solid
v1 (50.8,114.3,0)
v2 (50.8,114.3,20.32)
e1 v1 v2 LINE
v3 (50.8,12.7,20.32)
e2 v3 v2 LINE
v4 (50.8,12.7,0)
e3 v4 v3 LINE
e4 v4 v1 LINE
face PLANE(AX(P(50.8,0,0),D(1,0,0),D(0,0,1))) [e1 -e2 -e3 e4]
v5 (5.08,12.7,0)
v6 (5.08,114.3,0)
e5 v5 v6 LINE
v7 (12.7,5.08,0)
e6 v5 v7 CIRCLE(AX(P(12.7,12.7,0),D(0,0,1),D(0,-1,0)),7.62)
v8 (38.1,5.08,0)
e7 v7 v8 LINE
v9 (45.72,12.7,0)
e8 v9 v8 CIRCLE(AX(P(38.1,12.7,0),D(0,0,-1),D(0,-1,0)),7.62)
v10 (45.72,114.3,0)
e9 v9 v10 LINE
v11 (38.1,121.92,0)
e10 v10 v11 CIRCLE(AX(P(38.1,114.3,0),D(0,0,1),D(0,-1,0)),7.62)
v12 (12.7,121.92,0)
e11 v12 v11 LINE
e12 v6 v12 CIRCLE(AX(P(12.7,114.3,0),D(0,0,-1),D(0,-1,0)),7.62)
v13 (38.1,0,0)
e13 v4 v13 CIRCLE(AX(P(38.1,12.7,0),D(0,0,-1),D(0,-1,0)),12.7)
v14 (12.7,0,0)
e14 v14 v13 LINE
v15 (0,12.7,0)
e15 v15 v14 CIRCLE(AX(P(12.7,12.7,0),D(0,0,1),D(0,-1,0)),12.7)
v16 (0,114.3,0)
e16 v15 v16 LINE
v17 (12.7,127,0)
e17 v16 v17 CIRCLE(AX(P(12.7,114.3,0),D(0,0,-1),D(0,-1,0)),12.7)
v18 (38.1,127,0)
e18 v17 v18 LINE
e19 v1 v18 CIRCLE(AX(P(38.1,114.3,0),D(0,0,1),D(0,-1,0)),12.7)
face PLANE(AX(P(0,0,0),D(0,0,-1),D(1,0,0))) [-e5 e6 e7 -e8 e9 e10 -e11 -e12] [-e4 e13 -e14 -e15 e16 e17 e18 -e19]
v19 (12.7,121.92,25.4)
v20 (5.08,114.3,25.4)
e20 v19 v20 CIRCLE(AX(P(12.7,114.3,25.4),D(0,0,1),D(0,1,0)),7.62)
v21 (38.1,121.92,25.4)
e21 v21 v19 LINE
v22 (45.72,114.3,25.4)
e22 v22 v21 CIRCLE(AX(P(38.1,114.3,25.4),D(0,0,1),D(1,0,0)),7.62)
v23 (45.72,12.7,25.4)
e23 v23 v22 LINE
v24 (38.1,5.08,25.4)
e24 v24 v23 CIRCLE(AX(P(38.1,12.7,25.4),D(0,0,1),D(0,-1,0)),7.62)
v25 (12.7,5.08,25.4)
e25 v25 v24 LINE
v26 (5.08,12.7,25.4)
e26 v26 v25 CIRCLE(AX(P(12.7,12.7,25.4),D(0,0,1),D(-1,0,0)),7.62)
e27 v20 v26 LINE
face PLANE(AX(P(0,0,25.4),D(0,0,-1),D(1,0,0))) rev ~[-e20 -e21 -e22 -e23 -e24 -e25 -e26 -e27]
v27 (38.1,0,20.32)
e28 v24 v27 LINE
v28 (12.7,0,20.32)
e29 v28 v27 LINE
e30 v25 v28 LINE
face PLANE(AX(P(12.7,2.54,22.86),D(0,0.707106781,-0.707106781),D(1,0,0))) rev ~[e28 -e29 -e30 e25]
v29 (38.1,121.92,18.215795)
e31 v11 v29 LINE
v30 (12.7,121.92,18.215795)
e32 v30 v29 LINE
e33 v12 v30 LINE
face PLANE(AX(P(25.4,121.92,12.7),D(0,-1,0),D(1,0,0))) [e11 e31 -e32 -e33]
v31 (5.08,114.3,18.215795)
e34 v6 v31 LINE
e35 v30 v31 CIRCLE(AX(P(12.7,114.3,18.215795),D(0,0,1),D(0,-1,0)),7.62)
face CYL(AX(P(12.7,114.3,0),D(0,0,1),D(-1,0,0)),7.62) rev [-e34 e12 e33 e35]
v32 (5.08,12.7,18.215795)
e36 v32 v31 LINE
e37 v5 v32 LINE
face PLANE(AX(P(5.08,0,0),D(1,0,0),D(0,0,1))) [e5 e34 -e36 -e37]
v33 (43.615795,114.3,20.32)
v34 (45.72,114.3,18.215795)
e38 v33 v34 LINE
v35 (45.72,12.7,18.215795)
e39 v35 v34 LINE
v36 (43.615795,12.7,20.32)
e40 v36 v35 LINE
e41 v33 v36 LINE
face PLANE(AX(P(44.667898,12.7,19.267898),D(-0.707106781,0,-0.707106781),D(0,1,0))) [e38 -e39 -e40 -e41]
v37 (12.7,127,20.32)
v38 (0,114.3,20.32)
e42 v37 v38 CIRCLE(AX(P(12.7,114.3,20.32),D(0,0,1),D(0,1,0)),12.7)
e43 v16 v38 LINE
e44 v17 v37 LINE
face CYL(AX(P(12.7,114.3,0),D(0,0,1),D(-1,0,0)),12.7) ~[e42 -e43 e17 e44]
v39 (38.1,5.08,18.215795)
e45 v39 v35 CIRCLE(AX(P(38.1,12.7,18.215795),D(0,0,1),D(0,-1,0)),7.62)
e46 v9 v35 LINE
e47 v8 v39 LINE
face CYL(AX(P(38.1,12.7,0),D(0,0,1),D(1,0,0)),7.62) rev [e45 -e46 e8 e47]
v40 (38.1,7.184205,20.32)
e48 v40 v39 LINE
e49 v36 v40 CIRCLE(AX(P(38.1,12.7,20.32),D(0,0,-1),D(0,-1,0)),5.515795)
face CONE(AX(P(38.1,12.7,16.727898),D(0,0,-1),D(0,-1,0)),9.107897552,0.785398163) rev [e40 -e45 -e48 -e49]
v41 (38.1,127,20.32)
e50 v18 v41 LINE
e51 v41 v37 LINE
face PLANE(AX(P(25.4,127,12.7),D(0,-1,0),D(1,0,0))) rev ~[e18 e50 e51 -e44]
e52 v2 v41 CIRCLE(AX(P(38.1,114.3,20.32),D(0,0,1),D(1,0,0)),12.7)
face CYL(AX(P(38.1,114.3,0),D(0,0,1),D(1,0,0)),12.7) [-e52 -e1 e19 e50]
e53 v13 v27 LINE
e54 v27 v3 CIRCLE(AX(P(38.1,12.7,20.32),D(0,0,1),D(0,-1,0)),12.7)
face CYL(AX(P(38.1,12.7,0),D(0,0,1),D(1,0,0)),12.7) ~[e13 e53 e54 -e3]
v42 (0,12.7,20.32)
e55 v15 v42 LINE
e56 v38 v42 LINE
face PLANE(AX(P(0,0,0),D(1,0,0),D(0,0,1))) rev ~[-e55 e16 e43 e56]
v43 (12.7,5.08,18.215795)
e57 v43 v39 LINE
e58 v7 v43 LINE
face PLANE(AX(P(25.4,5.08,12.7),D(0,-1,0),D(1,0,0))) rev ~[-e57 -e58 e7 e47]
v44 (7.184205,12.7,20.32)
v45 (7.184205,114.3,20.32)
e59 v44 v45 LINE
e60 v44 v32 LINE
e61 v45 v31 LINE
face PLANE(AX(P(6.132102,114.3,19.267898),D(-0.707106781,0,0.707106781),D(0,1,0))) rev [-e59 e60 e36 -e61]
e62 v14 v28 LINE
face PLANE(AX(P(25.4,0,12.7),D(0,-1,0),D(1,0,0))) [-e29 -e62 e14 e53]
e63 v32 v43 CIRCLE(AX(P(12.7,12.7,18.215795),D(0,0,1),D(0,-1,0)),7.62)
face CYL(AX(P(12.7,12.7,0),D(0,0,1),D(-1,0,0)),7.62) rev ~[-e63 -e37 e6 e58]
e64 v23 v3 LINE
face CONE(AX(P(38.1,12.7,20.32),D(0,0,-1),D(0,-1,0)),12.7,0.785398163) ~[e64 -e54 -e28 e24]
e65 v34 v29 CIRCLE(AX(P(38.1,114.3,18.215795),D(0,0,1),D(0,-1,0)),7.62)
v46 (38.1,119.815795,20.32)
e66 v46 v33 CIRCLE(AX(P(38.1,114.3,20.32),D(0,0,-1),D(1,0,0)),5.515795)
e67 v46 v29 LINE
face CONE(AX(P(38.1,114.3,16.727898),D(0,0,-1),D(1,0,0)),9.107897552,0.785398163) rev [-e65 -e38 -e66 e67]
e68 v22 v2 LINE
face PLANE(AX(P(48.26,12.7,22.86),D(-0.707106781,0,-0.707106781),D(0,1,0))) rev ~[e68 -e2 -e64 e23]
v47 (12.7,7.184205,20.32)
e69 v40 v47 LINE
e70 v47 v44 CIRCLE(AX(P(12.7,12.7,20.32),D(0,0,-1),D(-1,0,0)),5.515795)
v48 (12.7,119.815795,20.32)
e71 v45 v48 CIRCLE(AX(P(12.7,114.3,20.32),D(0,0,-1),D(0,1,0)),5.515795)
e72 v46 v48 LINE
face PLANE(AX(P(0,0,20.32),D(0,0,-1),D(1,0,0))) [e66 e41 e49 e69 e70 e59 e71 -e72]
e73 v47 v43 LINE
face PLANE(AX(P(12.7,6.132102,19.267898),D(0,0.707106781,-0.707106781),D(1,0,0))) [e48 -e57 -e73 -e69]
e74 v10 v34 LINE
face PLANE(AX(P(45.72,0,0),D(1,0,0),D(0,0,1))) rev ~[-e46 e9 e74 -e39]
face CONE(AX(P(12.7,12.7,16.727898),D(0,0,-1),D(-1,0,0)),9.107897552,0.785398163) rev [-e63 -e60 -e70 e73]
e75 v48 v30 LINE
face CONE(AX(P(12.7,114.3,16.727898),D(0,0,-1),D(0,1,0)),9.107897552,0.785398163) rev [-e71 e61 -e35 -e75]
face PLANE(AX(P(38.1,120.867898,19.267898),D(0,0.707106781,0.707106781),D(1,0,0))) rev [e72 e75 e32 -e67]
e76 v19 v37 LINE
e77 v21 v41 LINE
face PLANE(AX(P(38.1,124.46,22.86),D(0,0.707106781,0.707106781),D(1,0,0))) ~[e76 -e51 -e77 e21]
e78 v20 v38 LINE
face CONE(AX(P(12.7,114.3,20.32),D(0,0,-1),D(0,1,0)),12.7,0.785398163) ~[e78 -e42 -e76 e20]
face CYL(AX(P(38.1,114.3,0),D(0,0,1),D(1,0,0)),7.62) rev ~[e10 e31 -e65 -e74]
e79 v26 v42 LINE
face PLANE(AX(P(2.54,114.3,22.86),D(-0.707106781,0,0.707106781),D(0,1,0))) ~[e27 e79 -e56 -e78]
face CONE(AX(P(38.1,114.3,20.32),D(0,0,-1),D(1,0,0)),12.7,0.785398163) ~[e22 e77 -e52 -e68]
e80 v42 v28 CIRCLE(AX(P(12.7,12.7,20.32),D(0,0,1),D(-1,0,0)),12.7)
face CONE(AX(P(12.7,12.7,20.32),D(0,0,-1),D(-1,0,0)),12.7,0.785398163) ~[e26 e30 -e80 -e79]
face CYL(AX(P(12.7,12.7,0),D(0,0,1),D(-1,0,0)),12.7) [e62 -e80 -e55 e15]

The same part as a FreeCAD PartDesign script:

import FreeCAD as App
import Part
import Sketcher
Q = App.Units.Quantity


def edges_at(feature, points):
    """Names of the edges that pass closest to the given points."""
    edges = feature.Shape.Edges
    near = lambda p: min(range(len(edges)), key=lambda i: edges[i].distToShape(Part.Vertex(*p))[0])
    return sorted({f"Edge{near(p) + 1}" for p in points})


def faces_at(feature, points):
    """Names of the faces that lie closest to the given points."""
    faces = feature.Shape.Faces
    near = lambda p: min(range(len(faces)), key=lambda i: faces[i].distToShape(Part.Vertex(*p))[0])
    return sorted({f"Face{near(p) + 1}" for p in points})

doc = App.newDocument("Part")
body = doc.addObject("PartDesign::Body", "Body")

# Sketch on XZ plane
sketch1 = body.newObject("Sketcher::SketchObject", "Sketch")
sketch1.AttachmentSupport = (doc.getObject("XZ_Plane"), [""])
sketch1.MapMode = "FlatFace"
sketch1.addGeometry(Part.LineSegment(App.Vector(0, 25, 0), App.Vector(0, 0, 0)), False)
sketch1.addGeometry(Part.LineSegment(App.Vector(0, 0, 0), App.Vector(51, 0, 0)), False)
sketch1.addGeometry(Part.LineSegment(App.Vector(51, 0, 0), App.Vector(51, 25, 0)), False)
sketch1.addGeometry(Part.LineSegment(App.Vector(51, 25, 0), App.Vector(0, 25, 0)), False)
sketch1.addConstraint(Sketcher.Constraint("Coincident", 0, 2, 1, 1))
sketch1.addConstraint(Sketcher.Constraint("Coincident", 1, 2, 2, 1))
sketch1.addConstraint(Sketcher.Constraint("Coincident", 2, 2, 3, 1))
sketch1.addConstraint(Sketcher.Constraint("Coincident", 3, 2, 0, 1))
sketch1.addConstraint(Sketcher.Constraint("Vertical", 0))
sketch1.addConstraint(Sketcher.Constraint("Horizontal", 1))
sketch1.addConstraint(Sketcher.Constraint("Vertical", 2))
sketch1.addConstraint(Sketcher.Constraint("Horizontal", 3))
sketch1.addConstraint(Sketcher.Constraint("Coincident", 0, 2, -1, 1))
sketch1.addConstraint(Sketcher.Constraint("DistanceX", 1, 1, 1, 2, Q("2 in")))
sketch1.addConstraint(Sketcher.Constraint("DistanceY", 0, 2, 0, 1, Q("1 in")))
pad1 = body.newObject("PartDesign::Pad", "Pad")
pad1.Profile = sketch1
pad1.Length = Q("5 in")
pad1.Reversed = True
doc.recompute()

fillet = body.newObject("PartDesign::Fillet", "Fillet")
fillet.Base = (pad1, edges_at(pad1, [
    (0, 0, 12.7),
    (50.8, 0, 12.7),
    (50.8, 127, 12.7),
    (0, 127, 12.7),
]))
fillet.Radius = Q("0.5 in")
doc.recompute()

chamfer = body.newObject("PartDesign::Chamfer", "Chamfer")
chamfer.Base = (fillet, edges_at(fillet, [(50.8, 63.5, 25.4)]))
chamfer.Size = Q("0.2 in")
doc.recompute()

thickness = body.newObject("PartDesign::Thickness", "Thickness")
thickness.Base = (chamfer, faces_at(chamfer, [(25.4, 63.5, 0)]))
thickness.Value = Q("0.2 in")
thickness.Reversed = True
thickness.Join = "Arc"

doc.recompute()
